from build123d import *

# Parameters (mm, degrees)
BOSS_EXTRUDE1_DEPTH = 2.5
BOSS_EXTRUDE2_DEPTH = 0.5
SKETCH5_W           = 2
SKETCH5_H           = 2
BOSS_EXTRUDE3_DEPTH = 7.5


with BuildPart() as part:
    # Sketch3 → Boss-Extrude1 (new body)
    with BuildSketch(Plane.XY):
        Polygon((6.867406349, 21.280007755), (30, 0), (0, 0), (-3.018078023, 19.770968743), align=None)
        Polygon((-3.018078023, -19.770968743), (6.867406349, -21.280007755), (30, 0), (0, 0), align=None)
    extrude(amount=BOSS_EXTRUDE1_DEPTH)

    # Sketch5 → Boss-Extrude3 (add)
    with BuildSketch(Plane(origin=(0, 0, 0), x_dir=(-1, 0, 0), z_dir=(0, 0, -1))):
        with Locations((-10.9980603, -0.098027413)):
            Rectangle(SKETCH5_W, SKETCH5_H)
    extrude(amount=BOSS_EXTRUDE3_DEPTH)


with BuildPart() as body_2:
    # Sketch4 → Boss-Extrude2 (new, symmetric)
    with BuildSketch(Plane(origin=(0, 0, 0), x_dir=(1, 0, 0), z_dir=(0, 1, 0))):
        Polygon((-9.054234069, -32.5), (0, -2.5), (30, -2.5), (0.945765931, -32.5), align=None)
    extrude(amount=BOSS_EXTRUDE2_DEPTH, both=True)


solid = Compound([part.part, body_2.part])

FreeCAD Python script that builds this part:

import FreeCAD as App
import Part
import Sketcher
from FreeCAD import Vector

doc = App.newDocument("Part")
body = doc.addObject("PartDesign::Body", "Body")

sketch1 = body.newObject("Sketcher::SketchObject", "Sketch")
sketch1.AttachmentSupport = (doc.getObject("XY_Plane"), [""])
sketch1.MapMode = "FlatFace"
sketch1.addGeometry([
    Part.LineSegment(Vector(30, 0, 0), Vector(7, 21, 0)),
    Part.LineSegment(Vector(7, 21, 0), Vector(-3, 20, 0)),
    Part.LineSegment(Vector(-3, 20, 0), Vector(0, 0, 0)),
    Part.LineSegment(Vector(0, 0, 0), Vector(-3, -20, 0)),
    Part.LineSegment(Vector(-3, -20, 0), Vector(7, -21, 0)),
    Part.LineSegment(Vector(7, -21, 0), Vector(30, 0, 0)),
], False)
sketch1.addConstraint([
    Sketcher.Constraint("Coincident", 0, 2, 1, 1),
    Sketcher.Constraint("Coincident", 1, 2, 2, 1),
    Sketcher.Constraint("Coincident", 2, 2, 3, 1),
    Sketcher.Constraint("Coincident", 3, 2, 4, 1),
    Sketcher.Constraint("Coincident", 4, 2, 5, 1),
    Sketcher.Constraint("Coincident", 5, 2, 0, 1),
    Sketcher.Constraint("Coincident", 2, 2, -1, 1),
    Sketcher.Constraint("Symmetric", 1, 2, 3, 2, -1),
    Sketcher.Constraint("Symmetric", 0, 2, 4, 2, -1),
    Sketcher.Constraint("PointOnObject", 5, 2, -1),
    Sketcher.Constraint("Perpendicular", 1, 2),
    Sketcher.Constraint("Distance", 1, 10.0),
    Sketcher.Constraint("Distance", 2, 20.0),
    Sketcher.Constraint("DistanceX", -1, 1, 5, 2, 30.0),
    Sketcher.Constraint("Distance", 0, 31.431761),
])
pad1 = body.newObject("PartDesign::Pad", "Pad")
pad1.Profile = sketch1
pad1.Length = 2.5

sketch2 = body.newObject("Sketcher::SketchObject", "Sketch001")
sketch2.AttachmentSupport = (doc.getObject("XY_Plane"), [""])
sketch2.MapMode = "FlatFace"
sketch2.addGeometry([
    Part.LineSegment(Vector(12, 0.9, 0), Vector(12, -1.1, 0)),
    Part.LineSegment(Vector(12, -1.1, 0), Vector(10, -1.1, 0)),
    Part.LineSegment(Vector(10, -1.1, 0), Vector(10, 0.9, 0)),
    Part.LineSegment(Vector(10, 0.9, 0), Vector(12, 0.9, 0)),
], False)
sketch2.addConstraint([
    Sketcher.Constraint("Coincident", 0, 2, 1, 1),
    Sketcher.Constraint("Coincident", 1, 2, 2, 1),
    Sketcher.Constraint("Coincident", 2, 2, 3, 1),
    Sketcher.Constraint("Coincident", 3, 2, 0, 1),
    Sketcher.Constraint("Vertical", 0),
    Sketcher.Constraint("Horizontal", 1),
    Sketcher.Constraint("Vertical", 2),
    Sketcher.Constraint("Horizontal", 3),
    Sketcher.Constraint("Equal", 3, 0),
    Sketcher.Constraint("DistanceX", 1, 2, 1, 1, 2.0),
    Sketcher.Constraint("DistanceX", -1, 1, 0, 2, 11.99806),
    Sketcher.Constraint("DistanceY", 0, 2, -1, 1, 1.098027),
])
pad2 = body.newObject("PartDesign::Pad", "Pad001")
pad2.Profile = sketch2
pad2.Length = 7.5
pad2.Reversed = True
body2 = doc.addObject("PartDesign::Body", "Body001")

sketch3 = body2.newObject("Sketcher::SketchObject", "Sketch002")
sketch3.AttachmentSupport = (doc.getObject("XZ_Plane001"), [""])
sketch3.MapMode = "FlatFace"
sketch3.addGeometry([
    Part.LineSegment(Vector(0, 2, 0), Vector(-9, 32, 0)),
    Part.LineSegment(Vector(-9, 32, 0), Vector(1, 32, 0)),
    Part.LineSegment(Vector(1, 32, 0), Vector(30, 2, 0)),
    Part.LineSegment(Vector(30, 2, 0), Vector(0, 2, 0)),
], False)
sketch3.addConstraint([
    Sketcher.Constraint("Coincident", 0, 2, 1, 1),
    Sketcher.Constraint("Coincident", 1, 2, 2, 1),
    Sketcher.Constraint("Coincident", 2, 2, 3, 1),
    Sketcher.Constraint("Coincident", 3, 2, 0, 1),
    Sketcher.Constraint("Horizontal", 1),
    Sketcher.Constraint("Horizontal", 3),
    Sketcher.Constraint("PointOnObject", 3, 2, -2),
    Sketcher.Constraint("DistanceX", 1, 1, 1, 2, 10.0),
    Sketcher.Constraint("DistanceX", 3, 2, 3, 1, 30.0),
    Sketcher.Constraint("DistanceY", 2, 2, 1, 2, 30.0),
    Sketcher.Constraint("DistanceY", -1, 1, 0, 2, 32.5),
    Sketcher.Constraint("Distance", 0, 31.336547),
])
pad3 = body2.newObject("PartDesign::Pad", "Pad002")
pad3.Profile = sketch3
pad3.Length = 1
pad3.Midplane = True

doc.recompute()
